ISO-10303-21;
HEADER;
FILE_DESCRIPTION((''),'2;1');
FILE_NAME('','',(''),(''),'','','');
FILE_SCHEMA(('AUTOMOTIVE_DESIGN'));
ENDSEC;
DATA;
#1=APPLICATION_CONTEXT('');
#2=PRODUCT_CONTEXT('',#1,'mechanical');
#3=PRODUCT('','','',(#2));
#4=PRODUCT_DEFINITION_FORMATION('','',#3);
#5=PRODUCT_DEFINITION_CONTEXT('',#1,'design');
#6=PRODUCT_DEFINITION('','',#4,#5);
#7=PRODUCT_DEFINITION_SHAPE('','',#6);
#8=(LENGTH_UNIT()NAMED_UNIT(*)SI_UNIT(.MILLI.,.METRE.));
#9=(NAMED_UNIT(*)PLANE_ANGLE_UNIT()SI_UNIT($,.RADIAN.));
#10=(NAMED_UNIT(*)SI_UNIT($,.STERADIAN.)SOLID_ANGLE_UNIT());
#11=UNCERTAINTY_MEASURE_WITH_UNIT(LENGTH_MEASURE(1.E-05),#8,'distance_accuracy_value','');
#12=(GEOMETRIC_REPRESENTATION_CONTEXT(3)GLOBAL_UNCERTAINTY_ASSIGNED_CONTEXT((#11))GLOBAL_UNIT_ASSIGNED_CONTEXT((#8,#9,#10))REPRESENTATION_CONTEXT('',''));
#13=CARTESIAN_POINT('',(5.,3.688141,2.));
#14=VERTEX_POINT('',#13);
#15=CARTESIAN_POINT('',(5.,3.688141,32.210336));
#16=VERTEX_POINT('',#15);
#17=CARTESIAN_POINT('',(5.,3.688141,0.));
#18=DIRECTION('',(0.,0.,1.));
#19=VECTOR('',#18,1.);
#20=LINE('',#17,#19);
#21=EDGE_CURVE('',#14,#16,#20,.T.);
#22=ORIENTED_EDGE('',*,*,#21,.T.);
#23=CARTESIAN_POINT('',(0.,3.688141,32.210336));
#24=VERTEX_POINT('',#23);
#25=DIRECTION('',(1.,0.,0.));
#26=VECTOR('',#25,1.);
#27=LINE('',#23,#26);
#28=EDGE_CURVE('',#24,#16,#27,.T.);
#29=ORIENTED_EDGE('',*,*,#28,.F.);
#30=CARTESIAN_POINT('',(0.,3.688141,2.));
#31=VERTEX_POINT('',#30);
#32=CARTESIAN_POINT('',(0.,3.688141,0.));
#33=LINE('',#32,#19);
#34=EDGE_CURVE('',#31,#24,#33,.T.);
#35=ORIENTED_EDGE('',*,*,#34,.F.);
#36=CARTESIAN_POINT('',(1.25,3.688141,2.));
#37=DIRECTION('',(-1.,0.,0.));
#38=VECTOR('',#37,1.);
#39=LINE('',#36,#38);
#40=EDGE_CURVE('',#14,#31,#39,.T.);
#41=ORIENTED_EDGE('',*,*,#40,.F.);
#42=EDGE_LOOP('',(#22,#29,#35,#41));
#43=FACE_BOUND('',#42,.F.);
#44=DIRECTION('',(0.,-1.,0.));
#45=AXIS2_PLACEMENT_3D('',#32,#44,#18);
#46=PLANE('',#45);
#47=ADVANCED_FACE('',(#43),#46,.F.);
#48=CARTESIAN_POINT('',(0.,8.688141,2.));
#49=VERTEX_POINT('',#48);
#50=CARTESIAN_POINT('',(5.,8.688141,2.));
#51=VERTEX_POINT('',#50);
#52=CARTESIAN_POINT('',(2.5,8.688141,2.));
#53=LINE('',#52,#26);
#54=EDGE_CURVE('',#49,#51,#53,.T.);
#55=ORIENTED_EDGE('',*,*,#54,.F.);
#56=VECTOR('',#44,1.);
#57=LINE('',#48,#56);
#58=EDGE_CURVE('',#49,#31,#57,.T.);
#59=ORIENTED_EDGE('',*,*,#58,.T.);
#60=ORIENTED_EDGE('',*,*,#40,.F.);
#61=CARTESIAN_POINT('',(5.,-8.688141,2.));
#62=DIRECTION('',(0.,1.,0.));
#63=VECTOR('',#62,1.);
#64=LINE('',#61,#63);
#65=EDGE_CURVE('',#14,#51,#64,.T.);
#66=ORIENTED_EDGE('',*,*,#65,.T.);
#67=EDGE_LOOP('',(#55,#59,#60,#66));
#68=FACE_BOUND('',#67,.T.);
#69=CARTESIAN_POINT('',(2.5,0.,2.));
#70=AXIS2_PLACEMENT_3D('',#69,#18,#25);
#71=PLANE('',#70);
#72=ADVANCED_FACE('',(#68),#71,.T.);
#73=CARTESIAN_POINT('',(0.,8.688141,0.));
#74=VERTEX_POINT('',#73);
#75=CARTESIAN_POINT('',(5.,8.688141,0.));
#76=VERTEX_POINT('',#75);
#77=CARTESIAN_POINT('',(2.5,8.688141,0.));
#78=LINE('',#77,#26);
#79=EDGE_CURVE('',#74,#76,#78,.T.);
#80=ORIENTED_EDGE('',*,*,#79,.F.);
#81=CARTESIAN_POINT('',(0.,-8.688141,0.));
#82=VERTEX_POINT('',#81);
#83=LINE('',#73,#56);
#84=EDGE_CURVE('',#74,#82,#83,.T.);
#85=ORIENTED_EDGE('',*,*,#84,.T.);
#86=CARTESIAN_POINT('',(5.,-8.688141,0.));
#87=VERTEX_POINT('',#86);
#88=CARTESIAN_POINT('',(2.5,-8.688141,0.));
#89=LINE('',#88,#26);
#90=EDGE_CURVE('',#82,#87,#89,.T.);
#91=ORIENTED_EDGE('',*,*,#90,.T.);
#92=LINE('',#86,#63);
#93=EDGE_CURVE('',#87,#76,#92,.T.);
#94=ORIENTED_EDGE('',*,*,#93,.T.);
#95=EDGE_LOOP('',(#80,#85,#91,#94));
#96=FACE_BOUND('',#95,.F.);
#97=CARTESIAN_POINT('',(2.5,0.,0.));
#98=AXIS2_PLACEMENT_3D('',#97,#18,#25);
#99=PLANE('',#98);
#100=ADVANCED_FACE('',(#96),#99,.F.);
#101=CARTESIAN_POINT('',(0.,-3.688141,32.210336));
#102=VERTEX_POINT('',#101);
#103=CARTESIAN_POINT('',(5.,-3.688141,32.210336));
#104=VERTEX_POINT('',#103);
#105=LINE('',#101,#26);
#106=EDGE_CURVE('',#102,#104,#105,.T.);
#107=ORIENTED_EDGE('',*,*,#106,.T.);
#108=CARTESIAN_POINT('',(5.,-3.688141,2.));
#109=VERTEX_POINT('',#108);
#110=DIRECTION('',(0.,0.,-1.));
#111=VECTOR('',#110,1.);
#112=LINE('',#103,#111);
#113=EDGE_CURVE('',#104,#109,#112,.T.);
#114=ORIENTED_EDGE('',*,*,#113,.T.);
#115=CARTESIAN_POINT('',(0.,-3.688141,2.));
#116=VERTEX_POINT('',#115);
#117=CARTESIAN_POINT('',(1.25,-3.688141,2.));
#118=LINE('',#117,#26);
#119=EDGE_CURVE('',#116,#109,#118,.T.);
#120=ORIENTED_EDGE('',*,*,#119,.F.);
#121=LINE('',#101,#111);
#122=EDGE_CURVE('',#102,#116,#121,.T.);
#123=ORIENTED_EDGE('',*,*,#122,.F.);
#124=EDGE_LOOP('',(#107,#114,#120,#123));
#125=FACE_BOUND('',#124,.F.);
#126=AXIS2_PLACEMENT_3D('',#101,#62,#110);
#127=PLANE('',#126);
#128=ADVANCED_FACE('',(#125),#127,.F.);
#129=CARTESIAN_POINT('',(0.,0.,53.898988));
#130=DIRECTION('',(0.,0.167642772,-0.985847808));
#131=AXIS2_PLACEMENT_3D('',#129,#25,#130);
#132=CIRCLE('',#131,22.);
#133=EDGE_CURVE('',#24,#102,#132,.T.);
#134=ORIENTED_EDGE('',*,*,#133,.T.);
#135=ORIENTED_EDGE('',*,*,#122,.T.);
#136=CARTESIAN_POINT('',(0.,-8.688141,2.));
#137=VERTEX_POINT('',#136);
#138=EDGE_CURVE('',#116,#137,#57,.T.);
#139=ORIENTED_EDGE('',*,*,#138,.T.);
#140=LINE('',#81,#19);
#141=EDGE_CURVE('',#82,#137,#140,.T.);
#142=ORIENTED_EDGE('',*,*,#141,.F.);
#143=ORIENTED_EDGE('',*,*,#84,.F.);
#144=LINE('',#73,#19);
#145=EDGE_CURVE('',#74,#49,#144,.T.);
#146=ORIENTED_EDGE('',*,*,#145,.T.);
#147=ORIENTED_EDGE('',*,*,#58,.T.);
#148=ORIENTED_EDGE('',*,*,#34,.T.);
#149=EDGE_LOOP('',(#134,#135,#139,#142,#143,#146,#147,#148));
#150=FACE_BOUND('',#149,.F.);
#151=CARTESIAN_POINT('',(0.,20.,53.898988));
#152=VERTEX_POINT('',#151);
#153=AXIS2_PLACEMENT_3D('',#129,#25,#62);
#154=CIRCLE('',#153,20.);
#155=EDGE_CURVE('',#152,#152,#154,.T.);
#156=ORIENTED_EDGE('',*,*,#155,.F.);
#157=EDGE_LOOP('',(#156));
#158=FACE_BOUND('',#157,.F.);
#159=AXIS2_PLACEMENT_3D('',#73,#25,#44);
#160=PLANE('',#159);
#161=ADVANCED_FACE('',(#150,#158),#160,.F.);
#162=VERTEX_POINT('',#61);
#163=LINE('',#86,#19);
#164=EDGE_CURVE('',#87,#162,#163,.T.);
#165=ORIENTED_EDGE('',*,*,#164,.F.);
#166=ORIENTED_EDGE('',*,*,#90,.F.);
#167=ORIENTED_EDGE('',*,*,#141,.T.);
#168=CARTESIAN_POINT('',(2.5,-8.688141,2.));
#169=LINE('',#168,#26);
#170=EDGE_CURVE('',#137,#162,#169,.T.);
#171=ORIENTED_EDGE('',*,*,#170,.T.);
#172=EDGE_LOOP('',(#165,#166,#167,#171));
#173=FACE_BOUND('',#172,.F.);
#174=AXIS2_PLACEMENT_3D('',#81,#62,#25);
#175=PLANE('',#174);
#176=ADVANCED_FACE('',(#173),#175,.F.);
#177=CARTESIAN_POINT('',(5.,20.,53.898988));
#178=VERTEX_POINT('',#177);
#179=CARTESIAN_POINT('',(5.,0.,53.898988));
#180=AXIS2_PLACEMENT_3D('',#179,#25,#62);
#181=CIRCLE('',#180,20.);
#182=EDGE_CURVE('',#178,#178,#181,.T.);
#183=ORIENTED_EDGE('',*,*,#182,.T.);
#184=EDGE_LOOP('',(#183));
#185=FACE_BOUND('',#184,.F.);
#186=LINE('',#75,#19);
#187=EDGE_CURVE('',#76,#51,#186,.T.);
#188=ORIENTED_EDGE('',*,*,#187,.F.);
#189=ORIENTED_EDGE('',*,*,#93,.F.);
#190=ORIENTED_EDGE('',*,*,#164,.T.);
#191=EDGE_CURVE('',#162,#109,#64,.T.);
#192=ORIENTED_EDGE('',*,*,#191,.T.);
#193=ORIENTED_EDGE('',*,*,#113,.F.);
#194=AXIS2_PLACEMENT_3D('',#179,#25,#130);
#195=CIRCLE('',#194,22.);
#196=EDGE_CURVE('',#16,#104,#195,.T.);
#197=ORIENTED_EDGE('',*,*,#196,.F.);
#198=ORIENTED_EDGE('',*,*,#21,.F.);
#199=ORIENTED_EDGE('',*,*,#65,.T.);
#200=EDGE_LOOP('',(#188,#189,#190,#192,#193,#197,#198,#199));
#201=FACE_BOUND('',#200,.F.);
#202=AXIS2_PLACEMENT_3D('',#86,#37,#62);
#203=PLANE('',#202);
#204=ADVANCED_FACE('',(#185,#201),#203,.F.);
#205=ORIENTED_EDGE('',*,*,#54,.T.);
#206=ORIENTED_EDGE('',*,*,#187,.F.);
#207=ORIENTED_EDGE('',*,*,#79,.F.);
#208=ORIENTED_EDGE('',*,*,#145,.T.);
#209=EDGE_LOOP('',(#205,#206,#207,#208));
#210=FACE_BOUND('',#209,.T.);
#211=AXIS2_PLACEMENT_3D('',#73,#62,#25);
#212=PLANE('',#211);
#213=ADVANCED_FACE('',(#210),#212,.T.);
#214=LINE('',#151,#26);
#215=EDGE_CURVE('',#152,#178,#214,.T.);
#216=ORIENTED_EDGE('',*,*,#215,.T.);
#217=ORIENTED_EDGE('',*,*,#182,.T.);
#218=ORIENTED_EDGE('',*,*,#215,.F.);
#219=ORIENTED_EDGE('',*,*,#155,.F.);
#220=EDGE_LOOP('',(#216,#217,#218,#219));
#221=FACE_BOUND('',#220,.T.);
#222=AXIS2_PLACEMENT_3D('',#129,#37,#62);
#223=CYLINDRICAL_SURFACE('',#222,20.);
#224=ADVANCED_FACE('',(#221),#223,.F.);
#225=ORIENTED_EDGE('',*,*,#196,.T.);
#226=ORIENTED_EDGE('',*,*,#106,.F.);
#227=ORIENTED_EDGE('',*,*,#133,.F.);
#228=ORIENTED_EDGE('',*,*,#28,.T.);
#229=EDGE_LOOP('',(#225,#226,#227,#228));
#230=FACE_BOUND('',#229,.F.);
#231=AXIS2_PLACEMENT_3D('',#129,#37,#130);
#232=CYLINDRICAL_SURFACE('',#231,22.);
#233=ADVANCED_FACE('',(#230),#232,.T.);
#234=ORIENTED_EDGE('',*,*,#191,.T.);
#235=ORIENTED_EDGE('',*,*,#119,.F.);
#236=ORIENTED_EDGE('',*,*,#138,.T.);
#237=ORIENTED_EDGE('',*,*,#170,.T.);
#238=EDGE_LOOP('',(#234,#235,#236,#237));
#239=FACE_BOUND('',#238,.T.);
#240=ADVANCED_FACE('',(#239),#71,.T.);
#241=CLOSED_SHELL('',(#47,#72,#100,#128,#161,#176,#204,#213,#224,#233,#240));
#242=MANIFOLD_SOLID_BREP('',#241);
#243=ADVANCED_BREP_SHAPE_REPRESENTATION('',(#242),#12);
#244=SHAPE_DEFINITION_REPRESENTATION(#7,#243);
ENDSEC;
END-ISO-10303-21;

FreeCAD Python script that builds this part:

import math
import FreeCAD as App
import Part
import Sketcher

V = App.Vector

doc = App.newDocument("Part")
body = doc.addObject("PartDesign::Body", "Body")

sketch1 = body.newObject("Sketcher::SketchObject", "Sketch")
sketch1.AttachmentSupport = (doc.getObject("YZ_Plane"), [""])
sketch1.MapMode = "FlatFace"
sketch1.addGeometry([
    Part.LineSegment(V(4, 0, 0), V(4, 32, 0)),
    Part.ArcOfCircle(Part.Circle(V(0, 54, 0), V(0, 0, 1), 22), math.radians(-80), math.radians(260)),
    Part.LineSegment(V(-4, 32, 0), V(-4, 0, 0)),
    Part.LineSegment(V(-4, 0, 0), V(4, 0, 0)),
    Part.Circle(V(0, 54, 0), V(0, 0, 1), 20),
], False)
sketch1.addConstraint([
    Sketcher.Constraint("Coincident", 0, 2, 1, 1),
    Sketcher.Constraint("Coincident", 1, 2, 2, 1),
    Sketcher.Constraint("Coincident", 2, 2, 3, 1),
    Sketcher.Constraint("Coincident", 3, 2, 0, 1),
    Sketcher.Constraint("Vertical", 0),
    Sketcher.Constraint("Vertical", 2),
    Sketcher.Constraint("Horizontal", 3),
    Sketcher.Constraint("Coincident", 4, 3, 1, 3),
    Sketcher.Constraint("Symmetric", 2, 2, 3, 2, -1, 1),
    Sketcher.Constraint("PointOnObject", 1, 3, -2),
    Sketcher.Constraint("Diameter", 4, 40.0),
    Sketcher.Constraint("Radius", 1, 22.0),
    Sketcher.Constraint("DistanceX", 3, 1, 3, 2, 7.376282),
    Sketcher.Constraint("DistanceY", 0, 1, 0, 2, 32.210336),
])
pad1 = body.newObject("PartDesign::Pad", "Pad")
pad1.Profile = sketch1
pad1.Length = 5

sketch2 = body.newObject("Sketcher::SketchObject", "Sketch001")
sketch2.AttachmentSupport = (doc.getObject("XY_Plane"), [""])
sketch2.MapMode = "FlatFace"
sketch2.addGeometry([
    Part.LineSegment(V(0, -9, 0), V(5, -9, 0)),
    Part.LineSegment(V(5, -9, 0), V(5, 9, 0)),
    Part.LineSegment(V(5, 9, 0), V(0, 9, 0)),
    Part.LineSegment(V(0, 9, 0), V(0, -9, 0)),
], False)
sketch2.addConstraint([
    Sketcher.Constraint("Coincident", 0, 2, 1, 1),
    Sketcher.Constraint("Coincident", 1, 2, 2, 1),
    Sketcher.Constraint("Coincident", 2, 2, 3, 1),
    Sketcher.Constraint("Coincident", 3, 2, 0, 1),
    Sketcher.Constraint("Horizontal", 0),
    Sketcher.Constraint("Vertical", 1),
    Sketcher.Constraint("Horizontal", 2),
    Sketcher.Constraint("Vertical", 3),
    Sketcher.Constraint("Symmetric", 2, 2, 3, 2, -1, 1),
    Sketcher.Constraint("DistanceX", 0, 1, 0, 2, 5.0),
    Sketcher.Constraint("DistanceY", 1, 1, 1, 2, 17.376282),
])
pad2 = body.newObject("PartDesign::Pad", "Pad001")
pad2.Profile = sketch2
pad2.Length = 2

doc.recompute()
